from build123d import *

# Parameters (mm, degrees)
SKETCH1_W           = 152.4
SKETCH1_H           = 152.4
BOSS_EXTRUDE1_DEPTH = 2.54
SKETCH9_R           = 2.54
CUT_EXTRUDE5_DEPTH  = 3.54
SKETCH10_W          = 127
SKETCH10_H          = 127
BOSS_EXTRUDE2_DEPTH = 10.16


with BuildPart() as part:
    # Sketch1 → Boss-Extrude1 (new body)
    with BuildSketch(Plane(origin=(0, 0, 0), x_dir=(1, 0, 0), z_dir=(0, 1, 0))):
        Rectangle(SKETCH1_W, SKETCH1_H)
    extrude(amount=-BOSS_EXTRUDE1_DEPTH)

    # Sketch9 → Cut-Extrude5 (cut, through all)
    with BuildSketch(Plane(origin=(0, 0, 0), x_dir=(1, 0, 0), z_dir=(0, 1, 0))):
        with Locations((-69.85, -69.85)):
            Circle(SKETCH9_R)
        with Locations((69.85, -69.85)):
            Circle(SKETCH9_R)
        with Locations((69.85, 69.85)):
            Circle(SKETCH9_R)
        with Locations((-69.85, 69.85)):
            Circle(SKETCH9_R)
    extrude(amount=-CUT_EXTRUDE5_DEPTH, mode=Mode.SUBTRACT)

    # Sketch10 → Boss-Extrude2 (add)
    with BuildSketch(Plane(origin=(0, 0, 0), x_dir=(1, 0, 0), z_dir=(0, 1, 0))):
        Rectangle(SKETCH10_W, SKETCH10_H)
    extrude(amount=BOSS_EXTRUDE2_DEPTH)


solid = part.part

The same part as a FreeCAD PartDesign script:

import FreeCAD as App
import Part
import Sketcher
Q = App.Units.Quantity

doc = App.newDocument("Part")
body = doc.addObject("PartDesign::Body", "Body")

sketch1 = body.newObject("Sketcher::SketchObject", "Sketch")
sketch1.AttachmentSupport = (doc.getObject("XZ_Plane"), [""])
sketch1.MapMode = "FlatFace"
sketch1.addGeometry([
    Part.LineSegment(App.Vector(-76, -76, 0), App.Vector(-76, 76, 0)),
    Part.LineSegment(App.Vector(-76, 76, 0), App.Vector(76, 76, 0)),
    Part.LineSegment(App.Vector(76, 76, 0), App.Vector(76, -76, 0)),
    Part.LineSegment(App.Vector(76, -76, 0), App.Vector(-76, -76, 0)),
], False)
sketch1.addConstraint([
    Sketcher.Constraint("Coincident", 0, 2, 1, 1),
    Sketcher.Constraint("Coincident", 1, 2, 2, 1),
    Sketcher.Constraint("Coincident", 2, 2, 3, 1),
    Sketcher.Constraint("Coincident", 3, 2, 0, 1),
    Sketcher.Constraint("Vertical", 0),
    Sketcher.Constraint("Horizontal", 1),
    Sketcher.Constraint("Vertical", 2),
    Sketcher.Constraint("Horizontal", 3),
    Sketcher.Constraint("Symmetric", 0, 2, 2, 2, -1, 1),
    Sketcher.Constraint("Equal", 3, 0),
    Sketcher.Constraint("DistanceX", 1, 1, 1, 2, Q("6 in")),
])
pad1 = body.newObject("PartDesign::Pad", "Pad")
pad1.Profile = sketch1
pad1.Length = Q("0.1 in")

sketch2 = body.newObject("Sketcher::SketchObject", "Sketch001")
sketch2.AttachmentSupport = (doc.getObject("XZ_Plane"), [""])
sketch2.MapMode = "FlatFace"
sketch2.addGeometry([
    Part.Circle(App.Vector(-69.8, 69.8, 0), App.Vector(0, 0, 1), 2.5),
    Part.Circle(App.Vector(69.8, 69.8, 0), App.Vector(0, 0, 1), 2.5),
    Part.Circle(App.Vector(69.8, -69.8, 0), App.Vector(0, 0, 1), 2.5),
    Part.Circle(App.Vector(-69.8, -69.8, 0), App.Vector(0, 0, 1), 2.5),
], False)
sketch2.addConstraint([
    Sketcher.Constraint("Equal", 0, 1),
    Sketcher.Constraint("Equal", 1, 2),
    Sketcher.Constraint("Equal", 2, 3),
    Sketcher.Constraint("Symmetric", 0, 3, 2, 3, -1, 1),
    Sketcher.Constraint("Symmetric", 1, 3, 3, 3, -1, 1),
    Sketcher.Constraint("Symmetric", 0, 3, 1, 3, -2),
    Sketcher.Constraint("Diameter", 0, Q("0.2 in")),
    Sketcher.Constraint("DistanceX", 0, 3, 1, 3, Q("5.5 in")),
    Sketcher.Constraint("DistanceY", 2, 3, 1, 3, Q("5.5 in")),
])
pocket1 = body.newObject("PartDesign::Pocket", "Pocket")
pocket1.Profile = sketch2
pocket1.Type = "ThroughAll"
pocket1.Reversed = True

sketch3 = body.newObject("Sketcher::SketchObject", "Sketch002")
sketch3.AttachmentSupport = (doc.getObject("XZ_Plane"), [""])
sketch3.MapMode = "FlatFace"
sketch3.addGeometry([
    Part.LineSegment(App.Vector(-64, -64, 0), App.Vector(-64, 64, 0)),
    Part.LineSegment(App.Vector(-64, 64, 0), App.Vector(64, 64, 0)),
    Part.LineSegment(App.Vector(64, 64, 0), App.Vector(64, -64, 0)),
    Part.LineSegment(App.Vector(64, -64, 0), App.Vector(-64, -64, 0)),
], False)
sketch3.addConstraint([
    Sketcher.Constraint("Coincident", 0, 2, 1, 1),
    Sketcher.Constraint("Coincident", 1, 2, 2, 1),
    Sketcher.Constraint("Coincident", 2, 2, 3, 1),
    Sketcher.Constraint("Coincident", 3, 2, 0, 1),
    Sketcher.Constraint("Vertical", 0),
    Sketcher.Constraint("Horizontal", 1),
    Sketcher.Constraint("Vertical", 2),
    Sketcher.Constraint("Horizontal", 3),
    Sketcher.Constraint("Symmetric", 0, 2, 2, 2, -1, 1),
    Sketcher.Constraint("Equal", 3, 0),
    Sketcher.Constraint("DistanceX", 1, 1, 1, 2, Q("5 in")),
])
pad2 = body.newObject("PartDesign::Pad", "Pad001")
pad2.Profile = sketch3
pad2.Length = Q("0.4 in")
pad2.Reversed = True

doc.recompute()
